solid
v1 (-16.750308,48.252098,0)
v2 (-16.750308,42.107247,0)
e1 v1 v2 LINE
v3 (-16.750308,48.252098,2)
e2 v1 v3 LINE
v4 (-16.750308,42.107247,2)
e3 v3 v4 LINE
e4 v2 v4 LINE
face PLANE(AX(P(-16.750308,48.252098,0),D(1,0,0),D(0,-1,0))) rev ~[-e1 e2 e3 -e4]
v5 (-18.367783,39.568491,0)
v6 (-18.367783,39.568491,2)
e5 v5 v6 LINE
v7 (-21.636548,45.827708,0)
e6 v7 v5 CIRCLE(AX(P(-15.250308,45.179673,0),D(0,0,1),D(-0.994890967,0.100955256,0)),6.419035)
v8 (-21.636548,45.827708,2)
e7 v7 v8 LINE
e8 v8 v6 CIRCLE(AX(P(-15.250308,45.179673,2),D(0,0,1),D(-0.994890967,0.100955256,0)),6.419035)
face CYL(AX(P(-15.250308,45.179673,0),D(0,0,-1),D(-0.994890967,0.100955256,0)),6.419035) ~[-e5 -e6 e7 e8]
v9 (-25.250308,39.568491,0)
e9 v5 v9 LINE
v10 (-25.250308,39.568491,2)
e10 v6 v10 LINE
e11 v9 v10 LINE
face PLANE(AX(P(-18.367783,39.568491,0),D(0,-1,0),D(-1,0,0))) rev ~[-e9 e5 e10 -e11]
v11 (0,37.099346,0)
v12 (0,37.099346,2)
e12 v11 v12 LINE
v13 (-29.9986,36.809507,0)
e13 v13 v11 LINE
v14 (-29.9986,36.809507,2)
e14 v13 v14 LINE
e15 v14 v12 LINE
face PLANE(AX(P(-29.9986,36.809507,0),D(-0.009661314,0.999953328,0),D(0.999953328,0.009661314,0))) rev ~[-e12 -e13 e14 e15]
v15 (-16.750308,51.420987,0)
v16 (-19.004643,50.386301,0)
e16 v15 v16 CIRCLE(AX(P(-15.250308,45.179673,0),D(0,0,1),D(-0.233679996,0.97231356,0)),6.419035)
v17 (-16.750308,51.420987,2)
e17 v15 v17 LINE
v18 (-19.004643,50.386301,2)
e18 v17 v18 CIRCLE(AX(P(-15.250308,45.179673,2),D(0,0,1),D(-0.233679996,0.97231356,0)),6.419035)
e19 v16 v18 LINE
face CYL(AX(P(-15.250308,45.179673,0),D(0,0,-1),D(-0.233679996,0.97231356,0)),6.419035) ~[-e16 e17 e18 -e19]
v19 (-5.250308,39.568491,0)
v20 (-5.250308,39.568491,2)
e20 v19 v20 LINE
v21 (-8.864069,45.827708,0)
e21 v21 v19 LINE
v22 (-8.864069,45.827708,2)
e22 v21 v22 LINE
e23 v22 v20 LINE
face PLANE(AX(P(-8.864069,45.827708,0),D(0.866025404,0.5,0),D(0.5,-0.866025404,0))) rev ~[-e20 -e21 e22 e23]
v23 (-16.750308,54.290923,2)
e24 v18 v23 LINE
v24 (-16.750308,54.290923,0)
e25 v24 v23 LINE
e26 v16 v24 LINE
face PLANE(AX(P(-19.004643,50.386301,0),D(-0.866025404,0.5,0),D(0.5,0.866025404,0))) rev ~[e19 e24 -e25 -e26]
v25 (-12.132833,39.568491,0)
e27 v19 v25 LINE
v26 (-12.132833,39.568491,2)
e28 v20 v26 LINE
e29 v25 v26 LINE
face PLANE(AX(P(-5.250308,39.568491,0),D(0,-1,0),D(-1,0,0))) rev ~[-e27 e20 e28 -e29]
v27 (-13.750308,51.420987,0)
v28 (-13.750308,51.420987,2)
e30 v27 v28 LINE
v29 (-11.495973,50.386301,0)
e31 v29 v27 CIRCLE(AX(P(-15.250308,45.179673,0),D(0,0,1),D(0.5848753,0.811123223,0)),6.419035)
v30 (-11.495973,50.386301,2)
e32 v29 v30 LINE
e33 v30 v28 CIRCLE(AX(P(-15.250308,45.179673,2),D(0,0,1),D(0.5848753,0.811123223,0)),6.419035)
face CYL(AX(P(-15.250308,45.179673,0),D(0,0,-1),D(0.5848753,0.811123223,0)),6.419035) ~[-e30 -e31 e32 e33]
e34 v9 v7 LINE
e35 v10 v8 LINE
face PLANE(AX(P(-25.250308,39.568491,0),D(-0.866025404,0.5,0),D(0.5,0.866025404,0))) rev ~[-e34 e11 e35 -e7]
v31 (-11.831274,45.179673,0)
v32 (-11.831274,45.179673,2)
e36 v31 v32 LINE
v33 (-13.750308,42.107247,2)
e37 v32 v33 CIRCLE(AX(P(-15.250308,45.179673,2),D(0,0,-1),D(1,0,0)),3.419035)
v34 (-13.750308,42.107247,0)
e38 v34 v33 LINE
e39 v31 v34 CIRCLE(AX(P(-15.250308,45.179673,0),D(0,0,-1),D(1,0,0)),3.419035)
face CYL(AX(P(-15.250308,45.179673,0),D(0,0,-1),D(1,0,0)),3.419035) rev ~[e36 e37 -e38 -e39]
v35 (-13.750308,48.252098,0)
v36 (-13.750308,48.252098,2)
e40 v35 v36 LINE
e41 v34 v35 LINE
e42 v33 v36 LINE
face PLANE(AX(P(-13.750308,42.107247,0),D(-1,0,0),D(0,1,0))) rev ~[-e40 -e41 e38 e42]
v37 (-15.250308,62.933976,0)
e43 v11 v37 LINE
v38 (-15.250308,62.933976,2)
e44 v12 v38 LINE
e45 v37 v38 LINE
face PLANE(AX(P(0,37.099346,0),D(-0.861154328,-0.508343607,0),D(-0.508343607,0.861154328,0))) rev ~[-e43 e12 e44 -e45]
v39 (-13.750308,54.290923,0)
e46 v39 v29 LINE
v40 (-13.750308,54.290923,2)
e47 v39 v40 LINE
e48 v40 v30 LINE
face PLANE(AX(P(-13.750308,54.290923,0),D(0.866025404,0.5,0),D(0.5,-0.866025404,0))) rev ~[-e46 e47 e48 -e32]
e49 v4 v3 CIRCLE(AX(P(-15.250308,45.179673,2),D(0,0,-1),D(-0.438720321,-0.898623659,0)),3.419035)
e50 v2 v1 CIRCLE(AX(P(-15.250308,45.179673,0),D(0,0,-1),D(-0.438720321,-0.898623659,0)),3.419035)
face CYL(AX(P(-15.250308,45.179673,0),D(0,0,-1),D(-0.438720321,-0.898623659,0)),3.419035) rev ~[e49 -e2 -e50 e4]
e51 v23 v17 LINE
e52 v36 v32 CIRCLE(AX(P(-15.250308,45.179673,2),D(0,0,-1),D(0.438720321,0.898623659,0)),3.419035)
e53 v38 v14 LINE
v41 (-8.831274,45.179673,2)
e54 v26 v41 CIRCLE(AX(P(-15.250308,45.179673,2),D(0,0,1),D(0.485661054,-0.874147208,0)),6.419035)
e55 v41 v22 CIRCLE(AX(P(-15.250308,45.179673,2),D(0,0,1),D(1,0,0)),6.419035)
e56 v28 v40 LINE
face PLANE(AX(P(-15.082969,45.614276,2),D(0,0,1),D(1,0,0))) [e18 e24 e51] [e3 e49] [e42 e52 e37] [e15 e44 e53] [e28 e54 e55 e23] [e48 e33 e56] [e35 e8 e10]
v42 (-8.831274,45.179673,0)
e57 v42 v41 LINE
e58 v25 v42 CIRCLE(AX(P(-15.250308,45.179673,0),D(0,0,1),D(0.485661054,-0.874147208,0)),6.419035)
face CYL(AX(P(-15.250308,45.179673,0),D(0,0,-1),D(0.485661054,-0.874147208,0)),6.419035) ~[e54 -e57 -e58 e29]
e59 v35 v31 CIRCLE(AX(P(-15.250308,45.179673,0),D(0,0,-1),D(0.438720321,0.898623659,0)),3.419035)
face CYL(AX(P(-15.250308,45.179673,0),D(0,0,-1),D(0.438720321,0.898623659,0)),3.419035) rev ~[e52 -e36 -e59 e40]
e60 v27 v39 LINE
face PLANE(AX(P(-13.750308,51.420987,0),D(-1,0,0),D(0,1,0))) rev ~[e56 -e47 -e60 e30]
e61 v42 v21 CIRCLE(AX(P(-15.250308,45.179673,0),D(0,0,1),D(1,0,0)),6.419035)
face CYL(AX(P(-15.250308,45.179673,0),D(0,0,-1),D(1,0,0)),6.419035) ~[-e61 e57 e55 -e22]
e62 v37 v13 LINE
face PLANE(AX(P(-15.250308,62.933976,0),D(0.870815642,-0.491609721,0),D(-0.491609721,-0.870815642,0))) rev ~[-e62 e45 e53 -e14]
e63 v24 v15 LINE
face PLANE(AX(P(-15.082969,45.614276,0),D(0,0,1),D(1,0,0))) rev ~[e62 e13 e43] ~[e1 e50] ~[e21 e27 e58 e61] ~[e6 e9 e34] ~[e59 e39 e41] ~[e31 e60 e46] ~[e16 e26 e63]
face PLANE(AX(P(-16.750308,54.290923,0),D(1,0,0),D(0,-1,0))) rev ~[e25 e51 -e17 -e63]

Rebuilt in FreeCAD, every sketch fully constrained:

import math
import FreeCAD as App
import Part
import Sketcher

doc = App.newDocument("Part")
body = doc.addObject("PartDesign::Body", "Body")

# Sketch on XY plane
sketch1 = body.newObject("Sketcher::SketchObject", "Sketch")
sketch1.AttachmentSupport = (doc.getObject("XY_Plane"), [""])
sketch1.MapMode = "FlatFace"
sketch1.addGeometry(Part.LineSegment(App.Vector(0, 37.099346, 0), App.Vector(-15.250308, 62.933976, 0)), False)
sketch1.addGeometry(Part.LineSegment(App.Vector(-15.250308, 62.933976, 0), App.Vector(-29.9986, 36.809507, 0)), False)
sketch1.addGeometry(Part.LineSegment(App.Vector(-29.9986, 36.809507, 0), App.Vector(0, 37.099346, 0)), False)
sketch1.addGeometry(Part.LineSegment(App.Vector(-25.250308, 39.568491, 0), App.Vector(-21.636548, 45.827708, 0)), False)
sketch1.addGeometry(Part.ArcOfCircle(Part.Circle(App.Vector(-15.250308, 45.179673, 0), App.Vector(0, 0, 1), 6.419035), math.radians(174.205819), math.radians(240.944208)), False)
sketch1.addGeometry(Part.LineSegment(App.Vector(-18.367783, 39.568491, 0), App.Vector(-25.250308, 39.568491, 0)), False)
sketch1.addGeometry(Part.LineSegment(App.Vector(-16.750308, 48.252098, 0), App.Vector(-16.750308, 42.107247, 0)), False)
sketch1.addGeometry(Part.ArcOfCircle(Part.Circle(App.Vector(-15.250308, 45.179673, 0), App.Vector(0, 0, 1), 3.419035), math.radians(116.022261), math.radians(243.977739)), False)
sketch1.addGeometry(Part.ArcOfCircle(Part.Circle(App.Vector(-15.250308, 45.179673, 0), App.Vector(0, 0, 1), 6.419035), math.radians(0), math.radians(5.794181)), False)
sketch1.addGeometry(Part.LineSegment(App.Vector(-8.864069, 45.827708, 0), App.Vector(-5.250308, 39.568491, 0)), False)
sketch1.addGeometry(Part.LineSegment(App.Vector(-5.250308, 39.568491, 0), App.Vector(-12.132833, 39.568491, 0)), False)
sketch1.addGeometry(Part.ArcOfCircle(Part.Circle(App.Vector(-15.250308, 45.179673, 0), App.Vector(0, 0, 1), 6.419035), math.radians(-60.944208), math.radians(0)), False)
sketch1.addGeometry(Part.ArcOfCircle(Part.Circle(App.Vector(-15.250308, 45.179673, 0), App.Vector(0, 0, 1), 3.419035), math.radians(-63.977739), math.radians(0)), False)
sketch1.addGeometry(Part.LineSegment(App.Vector(-13.750308, 42.107247, 0), App.Vector(-13.750308, 48.252098, 0)), False)
sketch1.addGeometry(Part.ArcOfCircle(Part.Circle(App.Vector(-15.250308, 45.179673, 0), App.Vector(0, 0, 1), 3.419035), math.radians(0), math.radians(63.977739)), False)
sketch1.addGeometry(Part.ArcOfCircle(Part.Circle(App.Vector(-15.250308, 45.179673, 0), App.Vector(0, 0, 1), 6.419035), math.radians(103.513826), math.radians(125.794181)), False)
sketch1.addGeometry(Part.LineSegment(App.Vector(-19.004643, 50.386301, 0), App.Vector(-16.750308, 54.290923, 0)), False)
sketch1.addGeometry(Part.LineSegment(App.Vector(-16.750308, 54.290923, 0), App.Vector(-16.750308, 51.420987, 0)), False)
sketch1.addGeometry(Part.LineSegment(App.Vector(-13.750308, 54.290923, 0), App.Vector(-11.495973, 50.386301, 0)), False)
sketch1.addGeometry(Part.ArcOfCircle(Part.Circle(App.Vector(-15.250308, 45.179673, 0), App.Vector(0, 0, 1), 6.419035), math.radians(54.205819), math.radians(76.486174)), False)
sketch1.addGeometry(Part.LineSegment(App.Vector(-13.750308, 51.420987, 0), App.Vector(-13.750308, 54.290923, 0)), False)
sketch1.addConstraint(Sketcher.Constraint("Coincident", 0, 2, 1, 1))
sketch1.addConstraint(Sketcher.Constraint("Coincident", 1, 2, 2, 1))
sketch1.addConstraint(Sketcher.Constraint("Coincident", 2, 2, 0, 1))
sketch1.addConstraint(Sketcher.Constraint("Coincident", 3, 2, 4, 1))
sketch1.addConstraint(Sketcher.Constraint("Coincident", 4, 2, 5, 1))
sketch1.addConstraint(Sketcher.Constraint("Coincident", 5, 2, 3, 1))
sketch1.addConstraint(Sketcher.Constraint("Coincident", 6, 1, 7, 1))
sketch1.addConstraint(Sketcher.Constraint("Coincident", 7, 2, 6, 2))
sketch1.addConstraint(Sketcher.Constraint("Coincident", 8, 2, 9, 1))
sketch1.addConstraint(Sketcher.Constraint("Coincident", 9, 2, 10, 1))
sketch1.addConstraint(Sketcher.Constraint("Coincident", 10, 2, 11, 1))
sketch1.addConstraint(Sketcher.Constraint("Coincident", 11, 2, 8, 1))
sketch1.addConstraint(Sketcher.Constraint("Coincident", 12, 1, 13, 1))
sketch1.addConstraint(Sketcher.Constraint("Coincident", 13, 2, 14, 2))
sketch1.addConstraint(Sketcher.Constraint("Coincident", 14, 1, 12, 2))
sketch1.addConstraint(Sketcher.Constraint("Coincident", 15, 2, 16, 1))
sketch1.addConstraint(Sketcher.Constraint("Coincident", 16, 2, 17, 1))
sketch1.addConstraint(Sketcher.Constraint("Coincident", 17, 2, 15, 1))
sketch1.addConstraint(Sketcher.Constraint("Coincident", 18, 2, 19, 1))
sketch1.addConstraint(Sketcher.Constraint("Coincident", 19, 2, 20, 1))
sketch1.addConstraint(Sketcher.Constraint("Coincident", 20, 2, 18, 1))
sketch1.addConstraint(Sketcher.Constraint("Horizontal", 5))
sketch1.addConstraint(Sketcher.Constraint("Vertical", 6))
sketch1.addConstraint(Sketcher.Constraint("Horizontal", 10))
sketch1.addConstraint(Sketcher.Constraint("Vertical", 13))
sketch1.addConstraint(Sketcher.Constraint("Vertical", 17))
sketch1.addConstraint(Sketcher.Constraint("Vertical", 20))
sketch1.addConstraint(Sketcher.Constraint("Coincident", 7, 3, 4, 3))
sketch1.addConstraint(Sketcher.Constraint("Coincident", 8, 3, 4, 3))
sketch1.addConstraint(Sketcher.Constraint("Coincident", 11, 3, 4, 3))
sketch1.addConstraint(Sketcher.Constraint("Coincident", 12, 3, 4, 3))
sketch1.addConstraint(Sketcher.Constraint("Coincident", 14, 3, 4, 3))
sketch1.addConstraint(Sketcher.Constraint("Coincident", 15, 3, 4, 3))
sketch1.addConstraint(Sketcher.Constraint("Coincident", 19, 3, 4, 3))
sketch1.addConstraint(Sketcher.Constraint("PointOnObject", 2, 2, -2))
sketch1.addConstraint(Sketcher.Constraint("Distance", 0, 30.0))
sketch1.addConstraint(Sketcher.Constraint("Distance", 1, 30.0))
sketch1.addConstraint(Sketcher.Constraint("Distance", 2, 30.0))
sketch1.addConstraint(Sketcher.Constraint("DistanceX", 5, 2, 8, 3, 10.0))
sketch1.addConstraint(Sketcher.Constraint("DistanceX", 4, 3, 9, 2, 10.0))
sketch1.addConstraint(Sketcher.Constraint("DistanceX", 7, 2, 12, 1, 3.0))
sketch1.addConstraint(Sketcher.Constraint("DistanceX", 14, 1, 11, 2, 3.0))
sketch1.addConstraint(Sketcher.Constraint("DistanceX", 16, 2, 13, 2, 3.0))
sketch1.addConstraint(Sketcher.Constraint("DistanceX", 17, 2, 19, 2, 3.0))
sketch1.addConstraint(Sketcher.Constraint("DistanceX", 6, 1, 8, 3, 1.5))
sketch1.addConstraint(Sketcher.Constraint("DistanceX", 16, 2, 0, 2, 1.5))
sketch1.addConstraint(Sketcher.Constraint("Radius", 4, 6.419035))
sketch1.addConstraint(Sketcher.Constraint("Radius", 7, 3.419035))
sketch1.addConstraint(Sketcher.Constraint("Radius", 8, 6.419035))
sketch1.addConstraint(Sketcher.Constraint("Radius", 15, 6.419035))
sketch1.addConstraint(Sketcher.Constraint("Radius", 19, 6.419035))
sketch1.addConstraint(Sketcher.Constraint("DistanceX", 1, 2, -1, 1, 29.9986))
sketch1.addConstraint(Sketcher.Constraint("DistanceY", -1, 1, 6, 1, 48.252098))
sketch1.addConstraint(Sketcher.Constraint("DistanceY", -1, 1, 15, 2, 50.386301))
sketch1.addConstraint(Sketcher.Constraint("DistanceY", -1, 1, 18, 2, 50.386301))
sketch1.addConstraint(Sketcher.Constraint("Distance", 3, 7.227521))
sketch1.addConstraint(Sketcher.Constraint("Distance", 9, 7.227521))
sketch1.addConstraint(Sketcher.Constraint("Distance", 16, 4.50867))
sketch1.addConstraint(Sketcher.Constraint("Distance", 18, 4.50867))
sketch1.addConstraint(Sketcher.Constraint("DistanceX", 5, 2, 5, 1, 6.882525))
sketch1.addConstraint(Sketcher.Constraint("DistanceX", 10, 2, 10, 1, 6.882525))
sketch1.addConstraint(Sketcher.Constraint("DistanceY", 14, 1, 18, 2, 5.206628))
sketch1.addConstraint(Sketcher.Constraint("DistanceY", -1, 1, 0, 2, 62.933976))
sketch1.addConstraint(Sketcher.Constraint("DistanceY", -1, 1, 11, 2, 45.179673))
pad1 = body.newObject("PartDesign::Pad", "Pad")
pad1.Profile = sketch1
pad1.Length = 2

doc.recompute()
